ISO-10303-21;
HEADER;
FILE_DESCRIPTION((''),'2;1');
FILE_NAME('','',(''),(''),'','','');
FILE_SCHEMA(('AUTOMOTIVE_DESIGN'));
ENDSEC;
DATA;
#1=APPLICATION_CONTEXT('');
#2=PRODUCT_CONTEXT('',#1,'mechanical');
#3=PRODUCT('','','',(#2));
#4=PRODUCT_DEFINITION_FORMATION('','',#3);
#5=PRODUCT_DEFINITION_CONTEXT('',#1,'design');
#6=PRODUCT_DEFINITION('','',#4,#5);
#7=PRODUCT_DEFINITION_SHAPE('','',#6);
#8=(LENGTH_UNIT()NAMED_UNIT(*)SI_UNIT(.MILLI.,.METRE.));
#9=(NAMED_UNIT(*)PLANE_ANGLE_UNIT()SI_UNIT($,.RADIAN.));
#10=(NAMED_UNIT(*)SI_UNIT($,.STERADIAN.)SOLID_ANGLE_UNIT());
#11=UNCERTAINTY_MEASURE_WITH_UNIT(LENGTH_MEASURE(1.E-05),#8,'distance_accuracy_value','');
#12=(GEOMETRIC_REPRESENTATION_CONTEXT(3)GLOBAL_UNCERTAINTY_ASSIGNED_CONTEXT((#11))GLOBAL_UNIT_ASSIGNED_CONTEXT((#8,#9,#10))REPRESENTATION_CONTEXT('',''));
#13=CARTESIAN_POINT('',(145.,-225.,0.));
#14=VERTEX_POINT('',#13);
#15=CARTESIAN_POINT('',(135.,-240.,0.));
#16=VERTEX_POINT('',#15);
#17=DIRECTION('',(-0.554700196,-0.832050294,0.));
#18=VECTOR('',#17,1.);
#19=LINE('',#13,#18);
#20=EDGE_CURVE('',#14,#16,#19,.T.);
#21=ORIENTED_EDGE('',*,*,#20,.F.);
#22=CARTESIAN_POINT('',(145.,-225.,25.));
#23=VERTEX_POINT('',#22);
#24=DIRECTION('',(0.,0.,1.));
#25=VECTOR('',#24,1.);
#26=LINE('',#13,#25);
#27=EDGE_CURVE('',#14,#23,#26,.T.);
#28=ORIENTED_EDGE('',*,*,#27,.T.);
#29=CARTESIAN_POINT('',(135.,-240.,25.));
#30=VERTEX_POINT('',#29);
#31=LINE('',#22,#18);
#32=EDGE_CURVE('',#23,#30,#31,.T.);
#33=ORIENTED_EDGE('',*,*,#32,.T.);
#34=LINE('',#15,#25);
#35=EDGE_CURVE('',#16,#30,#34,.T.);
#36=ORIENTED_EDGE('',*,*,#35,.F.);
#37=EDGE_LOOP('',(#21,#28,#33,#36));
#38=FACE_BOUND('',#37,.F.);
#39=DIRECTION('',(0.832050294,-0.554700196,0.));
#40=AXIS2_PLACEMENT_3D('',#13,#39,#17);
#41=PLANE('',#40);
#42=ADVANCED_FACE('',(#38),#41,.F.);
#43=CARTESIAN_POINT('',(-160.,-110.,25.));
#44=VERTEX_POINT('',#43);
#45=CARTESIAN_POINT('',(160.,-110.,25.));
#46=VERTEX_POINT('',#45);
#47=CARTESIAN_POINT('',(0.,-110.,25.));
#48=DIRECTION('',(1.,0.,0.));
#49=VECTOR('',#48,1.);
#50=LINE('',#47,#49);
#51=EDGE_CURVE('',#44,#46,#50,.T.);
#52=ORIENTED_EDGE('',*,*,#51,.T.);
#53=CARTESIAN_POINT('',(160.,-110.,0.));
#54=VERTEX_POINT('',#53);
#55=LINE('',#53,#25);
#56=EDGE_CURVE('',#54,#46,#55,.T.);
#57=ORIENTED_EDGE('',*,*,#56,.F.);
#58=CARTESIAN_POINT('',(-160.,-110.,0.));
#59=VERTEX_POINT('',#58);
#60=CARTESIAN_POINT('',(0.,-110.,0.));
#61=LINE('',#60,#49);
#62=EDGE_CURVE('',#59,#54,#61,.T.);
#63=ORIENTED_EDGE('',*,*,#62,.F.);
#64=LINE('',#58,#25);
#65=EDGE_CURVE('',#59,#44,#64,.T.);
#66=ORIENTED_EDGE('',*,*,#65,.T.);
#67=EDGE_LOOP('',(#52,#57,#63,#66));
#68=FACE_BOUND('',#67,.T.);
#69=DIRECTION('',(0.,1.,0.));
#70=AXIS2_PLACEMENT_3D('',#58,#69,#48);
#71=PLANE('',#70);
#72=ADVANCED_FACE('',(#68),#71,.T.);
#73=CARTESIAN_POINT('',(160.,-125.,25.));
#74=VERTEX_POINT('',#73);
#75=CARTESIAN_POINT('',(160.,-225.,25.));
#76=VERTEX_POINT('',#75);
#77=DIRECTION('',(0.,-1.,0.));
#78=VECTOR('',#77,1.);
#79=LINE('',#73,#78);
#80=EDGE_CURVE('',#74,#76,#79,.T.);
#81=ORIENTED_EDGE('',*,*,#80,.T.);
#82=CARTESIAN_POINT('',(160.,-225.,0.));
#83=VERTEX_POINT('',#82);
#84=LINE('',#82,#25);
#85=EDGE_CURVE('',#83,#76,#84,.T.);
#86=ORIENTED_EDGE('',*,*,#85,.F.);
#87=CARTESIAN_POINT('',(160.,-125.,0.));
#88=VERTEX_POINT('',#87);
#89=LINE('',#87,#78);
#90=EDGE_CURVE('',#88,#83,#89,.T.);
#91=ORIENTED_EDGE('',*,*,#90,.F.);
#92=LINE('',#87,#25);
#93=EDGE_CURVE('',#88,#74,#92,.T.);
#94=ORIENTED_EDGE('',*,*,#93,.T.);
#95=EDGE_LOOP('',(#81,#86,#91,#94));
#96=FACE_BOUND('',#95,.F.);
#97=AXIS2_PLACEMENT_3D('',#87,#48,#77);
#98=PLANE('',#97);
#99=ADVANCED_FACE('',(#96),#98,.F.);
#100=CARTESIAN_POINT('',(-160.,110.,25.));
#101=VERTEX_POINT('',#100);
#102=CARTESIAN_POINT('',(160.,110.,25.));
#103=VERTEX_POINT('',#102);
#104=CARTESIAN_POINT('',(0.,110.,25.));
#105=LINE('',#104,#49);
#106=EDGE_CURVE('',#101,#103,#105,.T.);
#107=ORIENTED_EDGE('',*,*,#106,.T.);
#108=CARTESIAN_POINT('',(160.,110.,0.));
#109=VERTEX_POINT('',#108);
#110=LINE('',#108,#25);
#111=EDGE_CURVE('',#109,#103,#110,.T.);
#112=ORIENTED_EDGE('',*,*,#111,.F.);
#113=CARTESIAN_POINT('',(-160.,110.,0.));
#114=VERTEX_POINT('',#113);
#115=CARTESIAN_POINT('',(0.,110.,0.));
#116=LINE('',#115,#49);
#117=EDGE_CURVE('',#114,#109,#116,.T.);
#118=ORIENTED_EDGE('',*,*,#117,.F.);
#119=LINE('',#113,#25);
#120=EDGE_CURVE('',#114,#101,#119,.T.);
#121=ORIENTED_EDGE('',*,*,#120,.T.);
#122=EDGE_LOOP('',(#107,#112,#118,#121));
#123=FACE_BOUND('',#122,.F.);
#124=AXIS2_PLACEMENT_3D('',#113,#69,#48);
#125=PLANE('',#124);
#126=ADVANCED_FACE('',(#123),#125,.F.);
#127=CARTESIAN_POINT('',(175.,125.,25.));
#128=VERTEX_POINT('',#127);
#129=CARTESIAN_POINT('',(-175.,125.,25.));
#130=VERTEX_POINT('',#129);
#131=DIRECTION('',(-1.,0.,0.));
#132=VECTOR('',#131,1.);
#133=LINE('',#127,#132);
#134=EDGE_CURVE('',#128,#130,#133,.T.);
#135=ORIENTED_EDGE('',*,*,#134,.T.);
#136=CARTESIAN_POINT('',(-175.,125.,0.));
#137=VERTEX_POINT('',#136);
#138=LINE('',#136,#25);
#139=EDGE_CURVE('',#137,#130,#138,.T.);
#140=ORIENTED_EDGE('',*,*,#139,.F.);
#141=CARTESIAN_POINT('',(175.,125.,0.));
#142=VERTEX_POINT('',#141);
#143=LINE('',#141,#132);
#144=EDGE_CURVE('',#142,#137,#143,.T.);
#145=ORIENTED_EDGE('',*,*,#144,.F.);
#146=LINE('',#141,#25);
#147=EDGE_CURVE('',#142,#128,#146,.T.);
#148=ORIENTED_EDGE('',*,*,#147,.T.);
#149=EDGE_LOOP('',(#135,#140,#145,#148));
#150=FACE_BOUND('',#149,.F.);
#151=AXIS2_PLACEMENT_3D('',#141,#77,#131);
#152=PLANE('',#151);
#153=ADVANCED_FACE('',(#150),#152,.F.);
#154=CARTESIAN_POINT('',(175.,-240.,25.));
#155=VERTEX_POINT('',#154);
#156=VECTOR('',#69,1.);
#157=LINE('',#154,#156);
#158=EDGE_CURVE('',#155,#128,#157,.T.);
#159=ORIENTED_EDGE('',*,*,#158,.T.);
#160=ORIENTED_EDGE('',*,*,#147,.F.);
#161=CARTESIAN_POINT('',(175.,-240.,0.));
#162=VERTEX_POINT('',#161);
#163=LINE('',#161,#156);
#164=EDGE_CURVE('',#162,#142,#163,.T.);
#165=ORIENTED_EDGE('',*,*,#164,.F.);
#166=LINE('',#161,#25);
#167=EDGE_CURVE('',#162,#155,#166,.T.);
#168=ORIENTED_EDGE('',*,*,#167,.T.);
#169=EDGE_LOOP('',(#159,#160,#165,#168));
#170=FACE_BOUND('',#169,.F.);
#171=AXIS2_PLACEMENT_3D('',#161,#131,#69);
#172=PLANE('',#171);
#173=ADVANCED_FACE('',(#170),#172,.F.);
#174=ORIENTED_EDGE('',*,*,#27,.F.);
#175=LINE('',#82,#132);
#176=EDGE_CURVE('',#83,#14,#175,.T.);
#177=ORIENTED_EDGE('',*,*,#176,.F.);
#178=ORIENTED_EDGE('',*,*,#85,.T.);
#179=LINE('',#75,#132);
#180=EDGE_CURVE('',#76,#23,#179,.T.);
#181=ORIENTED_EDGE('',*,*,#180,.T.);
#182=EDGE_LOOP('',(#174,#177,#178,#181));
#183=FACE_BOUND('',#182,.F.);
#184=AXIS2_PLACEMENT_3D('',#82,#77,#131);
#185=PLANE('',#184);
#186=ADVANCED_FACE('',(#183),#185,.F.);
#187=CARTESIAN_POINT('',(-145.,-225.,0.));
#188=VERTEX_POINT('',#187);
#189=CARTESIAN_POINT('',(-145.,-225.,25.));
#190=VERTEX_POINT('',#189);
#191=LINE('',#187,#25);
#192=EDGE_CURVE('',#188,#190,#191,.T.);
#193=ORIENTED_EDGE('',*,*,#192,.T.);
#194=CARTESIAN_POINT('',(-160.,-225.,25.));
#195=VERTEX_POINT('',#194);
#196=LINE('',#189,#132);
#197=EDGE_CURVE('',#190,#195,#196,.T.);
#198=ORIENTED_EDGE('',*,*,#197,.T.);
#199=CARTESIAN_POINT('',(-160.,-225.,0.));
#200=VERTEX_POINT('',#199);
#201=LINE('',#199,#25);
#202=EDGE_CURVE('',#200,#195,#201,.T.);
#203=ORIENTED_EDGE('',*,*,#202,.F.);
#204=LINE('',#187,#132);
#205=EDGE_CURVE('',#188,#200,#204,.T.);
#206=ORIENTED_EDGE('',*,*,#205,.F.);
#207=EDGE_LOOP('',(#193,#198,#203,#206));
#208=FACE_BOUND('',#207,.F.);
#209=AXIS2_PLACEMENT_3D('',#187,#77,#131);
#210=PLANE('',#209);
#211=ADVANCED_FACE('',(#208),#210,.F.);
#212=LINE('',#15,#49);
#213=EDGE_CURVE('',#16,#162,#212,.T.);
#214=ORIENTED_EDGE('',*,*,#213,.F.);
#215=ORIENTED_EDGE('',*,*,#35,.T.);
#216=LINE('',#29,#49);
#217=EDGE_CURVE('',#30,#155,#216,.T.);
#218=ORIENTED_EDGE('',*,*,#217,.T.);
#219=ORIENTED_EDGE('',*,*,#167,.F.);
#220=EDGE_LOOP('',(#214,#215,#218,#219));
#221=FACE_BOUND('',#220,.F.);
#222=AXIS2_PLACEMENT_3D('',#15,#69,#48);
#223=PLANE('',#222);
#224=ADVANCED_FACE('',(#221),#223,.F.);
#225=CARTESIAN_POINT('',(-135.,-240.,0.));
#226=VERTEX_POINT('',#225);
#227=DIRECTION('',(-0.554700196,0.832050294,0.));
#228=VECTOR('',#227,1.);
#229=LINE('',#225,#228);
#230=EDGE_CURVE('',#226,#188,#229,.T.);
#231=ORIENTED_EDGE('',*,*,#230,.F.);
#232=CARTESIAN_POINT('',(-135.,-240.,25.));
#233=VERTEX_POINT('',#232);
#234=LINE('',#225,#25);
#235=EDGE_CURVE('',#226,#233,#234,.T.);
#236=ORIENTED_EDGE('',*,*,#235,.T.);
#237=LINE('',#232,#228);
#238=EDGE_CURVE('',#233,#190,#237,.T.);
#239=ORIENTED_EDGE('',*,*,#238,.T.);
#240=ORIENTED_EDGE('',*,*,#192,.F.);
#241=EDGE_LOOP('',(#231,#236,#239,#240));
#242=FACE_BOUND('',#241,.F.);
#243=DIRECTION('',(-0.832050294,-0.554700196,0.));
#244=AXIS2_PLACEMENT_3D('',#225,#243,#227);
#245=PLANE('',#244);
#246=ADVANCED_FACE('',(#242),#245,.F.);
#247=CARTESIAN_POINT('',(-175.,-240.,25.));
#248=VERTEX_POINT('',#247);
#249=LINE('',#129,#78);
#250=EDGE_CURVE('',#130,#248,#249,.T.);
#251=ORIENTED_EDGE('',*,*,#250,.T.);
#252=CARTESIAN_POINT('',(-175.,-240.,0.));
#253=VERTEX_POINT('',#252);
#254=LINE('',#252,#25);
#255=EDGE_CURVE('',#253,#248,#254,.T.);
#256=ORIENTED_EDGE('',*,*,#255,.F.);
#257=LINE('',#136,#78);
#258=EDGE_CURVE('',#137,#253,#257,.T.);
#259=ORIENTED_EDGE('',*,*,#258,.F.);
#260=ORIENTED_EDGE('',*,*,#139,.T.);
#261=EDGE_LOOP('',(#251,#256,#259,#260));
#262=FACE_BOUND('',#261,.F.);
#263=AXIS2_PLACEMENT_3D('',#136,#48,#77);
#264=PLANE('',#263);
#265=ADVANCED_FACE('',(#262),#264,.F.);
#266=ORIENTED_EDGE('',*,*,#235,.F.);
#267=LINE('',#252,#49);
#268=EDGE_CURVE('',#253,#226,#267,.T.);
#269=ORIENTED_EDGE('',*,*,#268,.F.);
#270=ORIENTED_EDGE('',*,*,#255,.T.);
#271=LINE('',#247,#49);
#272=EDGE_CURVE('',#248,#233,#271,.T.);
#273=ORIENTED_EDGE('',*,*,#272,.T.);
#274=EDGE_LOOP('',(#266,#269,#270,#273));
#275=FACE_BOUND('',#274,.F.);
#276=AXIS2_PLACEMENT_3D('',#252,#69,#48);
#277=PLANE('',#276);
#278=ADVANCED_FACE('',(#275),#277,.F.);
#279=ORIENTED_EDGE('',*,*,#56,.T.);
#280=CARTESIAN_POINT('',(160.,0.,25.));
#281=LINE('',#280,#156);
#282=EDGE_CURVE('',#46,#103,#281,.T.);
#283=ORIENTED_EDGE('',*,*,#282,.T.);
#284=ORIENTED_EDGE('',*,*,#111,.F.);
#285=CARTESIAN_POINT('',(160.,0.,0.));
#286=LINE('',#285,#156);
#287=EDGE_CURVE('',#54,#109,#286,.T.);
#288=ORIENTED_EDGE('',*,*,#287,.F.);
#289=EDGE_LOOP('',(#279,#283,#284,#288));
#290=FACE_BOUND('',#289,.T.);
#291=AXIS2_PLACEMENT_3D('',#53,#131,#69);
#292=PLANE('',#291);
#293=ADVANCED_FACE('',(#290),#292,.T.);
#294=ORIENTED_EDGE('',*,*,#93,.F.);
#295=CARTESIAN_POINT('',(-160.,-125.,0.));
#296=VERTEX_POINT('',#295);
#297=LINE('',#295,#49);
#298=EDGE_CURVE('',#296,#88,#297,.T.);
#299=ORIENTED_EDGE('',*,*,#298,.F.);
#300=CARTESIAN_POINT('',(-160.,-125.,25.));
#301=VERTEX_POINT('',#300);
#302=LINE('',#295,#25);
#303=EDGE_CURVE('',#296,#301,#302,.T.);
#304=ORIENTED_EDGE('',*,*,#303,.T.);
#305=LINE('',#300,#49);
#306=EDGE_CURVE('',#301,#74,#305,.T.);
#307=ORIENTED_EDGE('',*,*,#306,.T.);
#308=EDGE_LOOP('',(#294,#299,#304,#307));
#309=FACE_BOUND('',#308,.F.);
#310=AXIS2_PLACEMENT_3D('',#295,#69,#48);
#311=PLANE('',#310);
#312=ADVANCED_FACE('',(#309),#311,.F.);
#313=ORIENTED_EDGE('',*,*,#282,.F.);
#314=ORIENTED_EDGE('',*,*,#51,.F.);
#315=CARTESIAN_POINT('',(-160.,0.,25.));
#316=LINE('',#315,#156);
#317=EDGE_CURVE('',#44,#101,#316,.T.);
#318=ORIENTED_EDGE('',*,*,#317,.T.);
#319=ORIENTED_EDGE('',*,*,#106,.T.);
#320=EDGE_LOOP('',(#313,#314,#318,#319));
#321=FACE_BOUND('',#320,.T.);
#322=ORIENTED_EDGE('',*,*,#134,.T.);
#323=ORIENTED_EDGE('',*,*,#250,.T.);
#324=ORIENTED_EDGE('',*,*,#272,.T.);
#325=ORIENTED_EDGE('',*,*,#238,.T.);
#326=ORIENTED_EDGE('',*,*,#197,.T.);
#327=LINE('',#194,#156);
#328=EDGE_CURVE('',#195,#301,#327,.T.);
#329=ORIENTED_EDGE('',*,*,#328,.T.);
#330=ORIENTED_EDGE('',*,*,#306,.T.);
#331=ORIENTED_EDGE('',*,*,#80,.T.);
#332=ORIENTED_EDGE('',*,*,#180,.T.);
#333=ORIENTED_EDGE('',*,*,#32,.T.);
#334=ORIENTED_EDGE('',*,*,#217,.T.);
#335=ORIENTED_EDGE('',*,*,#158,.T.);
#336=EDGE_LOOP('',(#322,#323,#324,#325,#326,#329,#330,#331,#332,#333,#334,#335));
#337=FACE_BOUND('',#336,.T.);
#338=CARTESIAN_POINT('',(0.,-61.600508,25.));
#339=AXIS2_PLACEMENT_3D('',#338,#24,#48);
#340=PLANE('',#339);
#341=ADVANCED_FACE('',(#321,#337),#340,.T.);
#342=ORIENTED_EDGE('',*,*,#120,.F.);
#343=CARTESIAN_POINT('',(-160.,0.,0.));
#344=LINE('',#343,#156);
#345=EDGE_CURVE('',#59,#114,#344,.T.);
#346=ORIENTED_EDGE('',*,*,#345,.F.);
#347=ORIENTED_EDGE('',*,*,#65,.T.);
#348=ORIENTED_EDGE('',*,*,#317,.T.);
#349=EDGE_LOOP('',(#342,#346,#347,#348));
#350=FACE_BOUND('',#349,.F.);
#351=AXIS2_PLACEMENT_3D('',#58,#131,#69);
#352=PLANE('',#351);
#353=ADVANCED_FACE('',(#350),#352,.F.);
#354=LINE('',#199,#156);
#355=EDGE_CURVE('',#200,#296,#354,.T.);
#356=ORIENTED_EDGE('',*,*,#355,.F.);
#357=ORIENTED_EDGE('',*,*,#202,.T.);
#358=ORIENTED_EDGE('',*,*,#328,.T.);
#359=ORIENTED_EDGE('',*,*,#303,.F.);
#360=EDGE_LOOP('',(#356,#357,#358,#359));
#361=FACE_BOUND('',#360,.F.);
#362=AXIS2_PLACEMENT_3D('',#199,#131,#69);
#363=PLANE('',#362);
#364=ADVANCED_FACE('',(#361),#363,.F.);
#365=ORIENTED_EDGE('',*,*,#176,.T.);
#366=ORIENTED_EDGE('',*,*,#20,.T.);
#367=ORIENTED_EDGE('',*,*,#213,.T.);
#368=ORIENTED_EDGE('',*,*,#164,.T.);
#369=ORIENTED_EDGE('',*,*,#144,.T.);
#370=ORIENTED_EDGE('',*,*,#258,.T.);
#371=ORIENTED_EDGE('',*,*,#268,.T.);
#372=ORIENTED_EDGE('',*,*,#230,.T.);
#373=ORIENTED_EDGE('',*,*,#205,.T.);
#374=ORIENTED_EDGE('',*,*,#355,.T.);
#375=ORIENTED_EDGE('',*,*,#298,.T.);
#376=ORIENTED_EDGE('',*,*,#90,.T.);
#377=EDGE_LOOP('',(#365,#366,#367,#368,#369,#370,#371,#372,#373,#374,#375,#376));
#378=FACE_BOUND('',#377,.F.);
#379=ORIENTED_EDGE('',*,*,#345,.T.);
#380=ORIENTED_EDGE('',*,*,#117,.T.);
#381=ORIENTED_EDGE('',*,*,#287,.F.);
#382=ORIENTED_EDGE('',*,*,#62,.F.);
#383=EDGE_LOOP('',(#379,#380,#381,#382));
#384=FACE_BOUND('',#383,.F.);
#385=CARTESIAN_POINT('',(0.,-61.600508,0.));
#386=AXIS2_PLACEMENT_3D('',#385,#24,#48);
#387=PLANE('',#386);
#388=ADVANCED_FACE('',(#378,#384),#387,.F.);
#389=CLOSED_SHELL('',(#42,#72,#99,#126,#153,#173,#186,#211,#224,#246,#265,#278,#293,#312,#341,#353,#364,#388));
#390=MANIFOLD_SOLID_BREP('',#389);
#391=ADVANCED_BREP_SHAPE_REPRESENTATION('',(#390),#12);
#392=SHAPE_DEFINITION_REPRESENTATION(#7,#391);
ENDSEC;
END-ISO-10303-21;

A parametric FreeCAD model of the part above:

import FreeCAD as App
import Part
import Sketcher

doc = App.newDocument("Part")
body = doc.addObject("PartDesign::Body", "Body")

# Sketch on XY plane
sketch1 = body.newObject("Sketcher::SketchObject", "Sketch")
sketch1.AttachmentSupport = (doc.getObject("XY_Plane"), [""])
sketch1.MapMode = "FlatFace"
sketch1.addGeometry([
    Part.LineSegment(App.Vector(-145, -225, 0), App.Vector(-160, -225, 0)),  # 0
    Part.LineSegment(App.Vector(-160, -225, 0), App.Vector(-160, -125, 0)),  # 1
    Part.LineSegment(App.Vector(-160, -125, 0), App.Vector(160, -125, 0)),  # 2
    Part.LineSegment(App.Vector(160, -125, 0), App.Vector(160, -225, 0)),  # 3
    Part.LineSegment(App.Vector(160, -225, 0), App.Vector(145, -225, 0)),  # 4
    Part.LineSegment(App.Vector(145, -225, 0), App.Vector(135, -240, 0)),  # 5
    Part.LineSegment(App.Vector(135, -240, 0), App.Vector(175, -240, 0)),  # 6
    Part.LineSegment(App.Vector(175, -240, 0), App.Vector(175, 125, 0)),  # 7
    Part.LineSegment(App.Vector(175, 125, 0), App.Vector(-175, 125, 0)),  # 8
    Part.LineSegment(App.Vector(-175, 125, 0), App.Vector(-175, -240, 0)),  # 9
    Part.LineSegment(App.Vector(-175, -240, 0), App.Vector(-135, -240, 0)),  # 10
    Part.LineSegment(App.Vector(-135, -240, 0), App.Vector(-145, -225, 0)),  # 11
    Part.LineSegment(App.Vector(160, -110, 0), App.Vector(-160, -110, 0)),  # 12
    Part.LineSegment(App.Vector(-160, -110, 0), App.Vector(-160, 110, 0)),  # 13
    Part.LineSegment(App.Vector(-160, 110, 0), App.Vector(160, 110, 0)),  # 14
    Part.LineSegment(App.Vector(160, 110, 0), App.Vector(160, -110, 0)),  # 15
], False)
sketch1.addConstraint([
    Sketcher.Constraint("Coincident", 0, 2, 1, 1),
    Sketcher.Constraint("Coincident", 1, 2, 2, 1),
    Sketcher.Constraint("Coincident", 2, 2, 3, 1),
    Sketcher.Constraint("Coincident", 3, 2, 4, 1),
    Sketcher.Constraint("Coincident", 4, 2, 5, 1),
    Sketcher.Constraint("Coincident", 5, 2, 6, 1),
    Sketcher.Constraint("Coincident", 6, 2, 7, 1),
    Sketcher.Constraint("Coincident", 7, 2, 8, 1),
    Sketcher.Constraint("Coincident", 8, 2, 9, 1),
    Sketcher.Constraint("Coincident", 9, 2, 10, 1),
    Sketcher.Constraint("Coincident", 10, 2, 11, 1),
    Sketcher.Constraint("Coincident", 11, 2, 0, 1),
    Sketcher.Constraint("Coincident", 12, 2, 13, 1),
    Sketcher.Constraint("Coincident", 13, 2, 14, 1),
    Sketcher.Constraint("Coincident", 14, 2, 15, 1),
    Sketcher.Constraint("Coincident", 15, 2, 12, 1),
    Sketcher.Constraint("Horizontal", 0),
    Sketcher.Constraint("Vertical", 1),
    Sketcher.Constraint("Horizontal", 2),
    Sketcher.Constraint("Vertical", 3),
    Sketcher.Constraint("Horizontal", 4),
    Sketcher.Constraint("Horizontal", 6),
    Sketcher.Constraint("Vertical", 7),
    Sketcher.Constraint("Horizontal", 8),
    Sketcher.Constraint("Vertical", 9),
    Sketcher.Constraint("Horizontal", 10),
    Sketcher.Constraint("Horizontal", 12),
    Sketcher.Constraint("Vertical", 13),
    Sketcher.Constraint("Horizontal", 14),
    Sketcher.Constraint("Vertical", 15),
    Sketcher.Constraint("Symmetric", 12, 2, 14, 2, -1, 1),
    Sketcher.Constraint("Symmetric", 0, 2, 3, 2, -2),
    Sketcher.Constraint("Symmetric", 6, 2, 9, 2, -2),
    Sketcher.Constraint("Vertical", 1, 2, 12, 2),
    Sketcher.Constraint("Equal", 0, 4),
    Sketcher.Constraint("Equal", 6, 10),
    Sketcher.Constraint("DistanceX", 0, 2, 0, 1, 15.0),
    Sketcher.Constraint("DistanceX", 2, 1, 2, 2, 320.0),
    Sketcher.Constraint("DistanceX", 6, 1, 6, 2, 40.0),
    Sketcher.Constraint("DistanceX", 8, 2, 8, 1, 350.0),
    Sketcher.Constraint("DistanceY", 1, 1, 1, 2, 100.0),
    Sketcher.Constraint("DistanceY", 7, 1, 7, 2, 365.0),
    Sketcher.Constraint("DistanceY", 13, 1, 13, 2, 220.0),
    Sketcher.Constraint("DistanceY", 0, 2, -1, 1, 225.0),
    Sketcher.Constraint("DistanceY", 5, 2, -1, 1, 240.0),
])
pad1 = body.newObject("PartDesign::Pad", "Pad")
pad1.Profile = sketch1
pad1.Length = 25

doc.recompute()
